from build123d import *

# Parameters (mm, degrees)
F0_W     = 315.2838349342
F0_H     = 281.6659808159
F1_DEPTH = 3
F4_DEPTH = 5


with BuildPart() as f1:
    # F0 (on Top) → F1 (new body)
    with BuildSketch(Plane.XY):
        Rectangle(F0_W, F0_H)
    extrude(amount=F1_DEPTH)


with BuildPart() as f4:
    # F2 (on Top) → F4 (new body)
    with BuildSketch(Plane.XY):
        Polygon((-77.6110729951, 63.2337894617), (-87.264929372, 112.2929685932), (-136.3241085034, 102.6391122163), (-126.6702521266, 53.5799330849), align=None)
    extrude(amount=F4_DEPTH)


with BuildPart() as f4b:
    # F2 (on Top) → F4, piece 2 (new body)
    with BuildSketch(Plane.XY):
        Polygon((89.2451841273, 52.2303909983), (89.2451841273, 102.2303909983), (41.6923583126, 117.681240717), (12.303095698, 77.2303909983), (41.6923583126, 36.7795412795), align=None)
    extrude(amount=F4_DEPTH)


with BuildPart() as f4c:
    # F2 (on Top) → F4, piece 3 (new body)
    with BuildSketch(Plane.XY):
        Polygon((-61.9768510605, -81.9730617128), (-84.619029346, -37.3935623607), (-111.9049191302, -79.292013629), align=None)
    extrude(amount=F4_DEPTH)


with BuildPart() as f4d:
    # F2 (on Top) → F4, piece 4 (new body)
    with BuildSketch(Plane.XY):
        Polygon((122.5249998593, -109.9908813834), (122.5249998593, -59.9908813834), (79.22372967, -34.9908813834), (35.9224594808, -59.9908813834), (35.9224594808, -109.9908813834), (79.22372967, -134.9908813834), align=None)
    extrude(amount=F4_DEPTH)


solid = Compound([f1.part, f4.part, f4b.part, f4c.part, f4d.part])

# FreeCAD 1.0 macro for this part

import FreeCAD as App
import Part
import Sketcher
from FreeCAD import Vector
Q = App.Units.Quantity


def add_polygon(sketch, points):
    """Adds a closed chain of lines whose ends are joined by coincident constraints."""
    first, n = sketch.GeometryCount, len(points)
    for a, b in zip(points, points[1:] + points[:1]):
        sketch.addGeometry(Part.LineSegment(App.Vector(*a, 0), App.Vector(*b, 0)), False)
    for i in range(n):
        sketch.addConstraint(Sketcher.Constraint("Coincident", first + i, 2, first + (i + 1) % n, 1))

doc = App.newDocument("Part")
body = doc.addObject("PartDesign::Body", "Body")

# Sketch on XY plane
sketch1 = body.newObject("Sketcher::SketchObject", "Sketch")
sketch1.AttachmentSupport = (doc.getObject("XY_Plane"), [""])
sketch1.MapMode = "FlatFace"
add_polygon(sketch1, [(-157.641917, 140.83299), (-157.641917, -140.83299), (157.641917, -140.83299), (157.641917, 140.83299)])  # lines 0-3
sketch1.addConstraint(Sketcher.Constraint("Vertical", 0))
sketch1.addConstraint(Sketcher.Constraint("Horizontal", 1))
sketch1.addConstraint(Sketcher.Constraint("Vertical", 2))
sketch1.addConstraint(Sketcher.Constraint("Horizontal", 3))
sketch1.addConstraint(Sketcher.Constraint("Symmetric", 0, 2, 2, 2, -1, 1))
sketch1.addConstraint(Sketcher.Constraint("DistanceY", 0, 2, 0, 1, Q("281.665981 mm")))
sketch1.addConstraint(Sketcher.Constraint("DistanceX", 1, 1, 1, 2, Q("315.283835 mm")))
pad1 = body.newObject("PartDesign::Pad", "Pad")
pad1.Profile = sketch1
pad1.Length = 3
body2 = doc.addObject("PartDesign::Body", "Body001")

# Sketch on XY plane
sketch2 = body2.newObject("Sketcher::SketchObject", "Sketch001")
sketch2.AttachmentSupport = (doc.getObject("XY_Plane001"), [""])
sketch2.MapMode = "FlatFace"
add_polygon(sketch2, [(-77.611073, 63.233789), (-87.264929, 112.292969), (-136.324109, 102.639112), (-126.670252, 53.579933)])  # lines 0-3
sketch2.addConstraint(Sketcher.Constraint("Perpendicular", 0, 1))
sketch2.addConstraint(Sketcher.Constraint("Perpendicular", 1, 2))
sketch2.addConstraint(Sketcher.Constraint("Perpendicular", 2, 3))
sketch2.addConstraint(Sketcher.Constraint("Equal", 0, 1))
sketch2.addConstraint(Sketcher.Constraint("Distance", 0, Q("50 mm")))
sketch2.addConstraint(Sketcher.Constraint("DistanceX", 0, 2, -1, 1, Q("87.264929 mm")))
sketch2.addConstraint(Sketcher.Constraint("DistanceY", -1, 1, 0, 2, Q("112.292969 mm")))
sketch2.addConstraint(Sketcher.Constraint("DistanceX", 1, 2, -1, 1, Q("136.324109 mm")))
pad2 = body2.newObject("PartDesign::Pad", "Pad001")
pad2.Profile = sketch2
pad2.Length = 5
body3 = doc.addObject("PartDesign::Body", "Body002")

# Sketch on XY plane
sketch3 = body3.newObject("Sketcher::SketchObject", "Sketch002")
sketch3.AttachmentSupport = (doc.getObject("XY_Plane002"), [""])
sketch3.MapMode = "FlatFace"
add_polygon(sketch3, [(89.245184, 52.230391), (89.245184, 102.230391), (41.692358, 117.681241), (12.303096, 77.230391), (41.692358, 36.779541)])  # lines 0-4
sketch3.addConstraint(Sketcher.Constraint("Vertical", 0))
sketch3.addConstraint(Sketcher.Constraint("Vertical", 1, 2, 3, 2))
sketch3.addConstraint(Sketcher.Constraint("Equal", 1, 2))
sketch3.addConstraint(Sketcher.Constraint("Equal", 2, 3))
sketch3.addConstraint(Sketcher.Constraint("Equal", 3, 4))
sketch3.addConstraint(Sketcher.Constraint("DistanceY", 0, 1, 0, 2, Q("50 mm")))
sketch3.addConstraint(Sketcher.Constraint("Angle", 1, Q("162 deg")))
sketch3.addConstraint(Sketcher.Constraint("Angle", 2, Q("-126 deg")))
sketch3.addConstraint(Sketcher.Constraint("DistanceY", -1, 1, 0, 2, Q("102.230391 mm")))
sketch3.addConstraint(Sketcher.Constraint("DistanceX", -1, 1, 1, 2, Q("41.692358 mm")))
pad3 = body3.newObject("PartDesign::Pad", "Pad002")
pad3.Profile = sketch3
pad3.Length = 5
body4 = doc.addObject("PartDesign::Body", "Body003")

# Sketch on XY plane
sketch4 = body4.newObject("Sketcher::SketchObject", "Sketch003")
sketch4.AttachmentSupport = (doc.getObject("XY_Plane003"), [""])
sketch4.MapMode = "FlatFace"
add_polygon(sketch4, [(-61.976851, -81.973062), (-84.619029, -37.393562), (-111.904919, -79.292014)])  # lines 0-2
sketch4.addConstraint(Sketcher.Constraint("Equal", 0, 1))
sketch4.addConstraint(Sketcher.Constraint("Equal", 1, 2))
sketch4.addConstraint(Sketcher.Constraint("Distance", 0, Q("50 mm")))
sketch4.addConstraint(Sketcher.Constraint("DistanceY", 2, 2, 0, 2, Q("44.579499 mm")))
sketch4.addConstraint(Sketcher.Constraint("DistanceX", 0, 2, -1, 1, Q("84.619029 mm")))
sketch4.addConstraint(Sketcher.Constraint("DistanceY", 2, 2, -1, 1, Q("81.973062 mm")))
pad4 = body4.newObject("PartDesign::Pad", "Pad003")
pad4.Profile = sketch4
pad4.Length = 5
body5 = doc.addObject("PartDesign::Body", "Body004")

# Sketch on XY plane
sketch5 = body5.newObject("Sketcher::SketchObject", "Sketch004")
sketch5.AttachmentSupport = (doc.getObject("XY_Plane004"), [""])
sketch5.MapMode = "FlatFace"
add_polygon(sketch5, [(122.525, -109.990881), (122.525, -59.990881), (79.22373, -34.990881), (35.922459, -59.990881), (35.922459, -109.990881), (79.22373, -134.990881)])  # lines 0-5
sketch5.addConstraint(Sketcher.Constraint("Vertical", 0))
sketch5.addConstraint(Sketcher.Constraint("Vertical", 3))
sketch5.addConstraint(Sketcher.Constraint("Parallel", 1, 4))
sketch5.addConstraint(Sketcher.Constraint("Parallel", 2, 5))
sketch5.addConstraint(Sketcher.Constraint("Horizontal", 0, 2, 2, 2))
sketch5.addConstraint(Sketcher.Constraint("Horizontal", 3, 2, 5, 2))
sketch5.addConstraint(Sketcher.Constraint("Vertical", 1, 2, 4, 2))
sketch5.addConstraint(Sketcher.Constraint("DistanceY", 0, 1, 0, 2, Q("50 mm")))
sketch5.addConstraint(Sketcher.Constraint("Angle", 1, Q("150 deg")))
sketch5.addConstraint(Sketcher.Constraint("Distance", 1, Q("50 mm")))
sketch5.addConstraint(Sketcher.Constraint("DistanceX", -1, 1, 0, 2, Q("122.525 mm")))
sketch5.addConstraint(Sketcher.Constraint("DistanceY", 0, 2, -1, 1, Q("59.990881 mm")))
pad5 = body5.newObject("PartDesign::Pad", "Pad004")
pad5.Profile = sketch5
pad5.Length = 5

doc.recompute()
